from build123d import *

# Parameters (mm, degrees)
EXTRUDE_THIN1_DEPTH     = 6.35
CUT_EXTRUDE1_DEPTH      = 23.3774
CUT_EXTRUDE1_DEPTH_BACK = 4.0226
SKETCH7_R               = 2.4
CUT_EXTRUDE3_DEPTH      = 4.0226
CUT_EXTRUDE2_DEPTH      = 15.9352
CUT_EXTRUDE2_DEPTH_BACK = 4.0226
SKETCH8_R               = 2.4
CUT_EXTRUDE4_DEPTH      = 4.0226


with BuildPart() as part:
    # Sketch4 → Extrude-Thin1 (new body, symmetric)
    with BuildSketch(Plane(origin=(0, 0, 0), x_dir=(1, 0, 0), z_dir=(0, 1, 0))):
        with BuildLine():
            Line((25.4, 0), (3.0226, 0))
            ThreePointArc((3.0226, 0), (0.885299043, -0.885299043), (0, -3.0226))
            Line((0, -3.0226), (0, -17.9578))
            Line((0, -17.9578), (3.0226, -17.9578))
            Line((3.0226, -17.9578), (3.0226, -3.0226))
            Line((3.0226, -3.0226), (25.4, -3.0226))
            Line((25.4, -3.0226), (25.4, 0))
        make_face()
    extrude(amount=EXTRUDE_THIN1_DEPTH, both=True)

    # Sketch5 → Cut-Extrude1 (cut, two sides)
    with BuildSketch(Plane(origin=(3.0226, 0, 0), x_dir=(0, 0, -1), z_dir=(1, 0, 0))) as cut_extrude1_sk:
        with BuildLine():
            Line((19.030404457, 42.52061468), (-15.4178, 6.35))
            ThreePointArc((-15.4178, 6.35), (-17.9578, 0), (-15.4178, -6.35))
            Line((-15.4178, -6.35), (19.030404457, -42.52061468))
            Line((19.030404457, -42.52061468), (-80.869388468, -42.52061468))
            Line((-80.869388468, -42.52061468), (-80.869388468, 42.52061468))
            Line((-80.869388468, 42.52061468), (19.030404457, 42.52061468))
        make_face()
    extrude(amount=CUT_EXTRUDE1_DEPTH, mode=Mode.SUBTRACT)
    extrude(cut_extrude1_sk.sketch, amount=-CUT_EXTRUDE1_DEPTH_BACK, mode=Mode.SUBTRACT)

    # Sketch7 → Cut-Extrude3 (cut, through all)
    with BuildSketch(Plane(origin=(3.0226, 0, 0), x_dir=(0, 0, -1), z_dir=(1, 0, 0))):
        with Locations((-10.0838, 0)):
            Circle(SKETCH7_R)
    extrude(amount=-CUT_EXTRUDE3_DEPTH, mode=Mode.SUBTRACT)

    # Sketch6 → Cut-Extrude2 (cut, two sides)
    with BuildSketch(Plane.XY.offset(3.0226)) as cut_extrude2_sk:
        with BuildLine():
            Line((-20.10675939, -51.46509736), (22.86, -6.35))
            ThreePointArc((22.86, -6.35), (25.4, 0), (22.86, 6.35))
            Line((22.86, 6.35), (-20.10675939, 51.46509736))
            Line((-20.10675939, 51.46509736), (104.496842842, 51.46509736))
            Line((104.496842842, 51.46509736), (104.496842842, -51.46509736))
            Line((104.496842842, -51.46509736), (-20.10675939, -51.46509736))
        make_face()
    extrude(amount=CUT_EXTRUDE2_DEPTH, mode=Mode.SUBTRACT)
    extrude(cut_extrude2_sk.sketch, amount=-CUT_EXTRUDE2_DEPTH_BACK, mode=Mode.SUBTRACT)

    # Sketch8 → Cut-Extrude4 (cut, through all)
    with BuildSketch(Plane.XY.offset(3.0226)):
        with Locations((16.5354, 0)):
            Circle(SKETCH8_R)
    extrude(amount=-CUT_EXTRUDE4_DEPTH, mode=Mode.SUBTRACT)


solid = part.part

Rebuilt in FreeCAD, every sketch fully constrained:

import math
import FreeCAD as App
import Part
import Sketcher

V = App.Vector
Q = App.Units.Quantity

doc = App.newDocument("Part")
body = doc.addObject("PartDesign::Body", "Body")

sketch1 = body.newObject("Sketcher::SketchObject", "Sketch")
sketch1.AttachmentSupport = (doc.getObject("XZ_Plane"), [""])
sketch1.MapMode = "FlatFace"
sketch1.addGeometry(Part.LineSegment(V(25.4, 0, 0), V(3.0226, 0, 0)), False)
sketch1.addGeometry(Part.ArcOfCircle(Part.Circle(V(3.0226, 3.0226, 0), V(0, 0, 1), 3.0226), math.radians(180), math.radians(270)), False)
sketch1.addGeometry(Part.LineSegment(V(0, 3.0226, 0), V(0, 17.9578, 0)), False)
sketch1.addGeometry(Part.LineSegment(V(0, 17.9578, 0), V(3.0226, 17.9578, 0)), False)
sketch1.addGeometry(Part.LineSegment(V(3.0226, 17.9578, 0), V(3.0226, 3.0226, 0)), False)
sketch1.addGeometry(Part.LineSegment(V(3.0226, 3.0226, 0), V(25.4, 3.0226, 0)), False)
sketch1.addGeometry(Part.LineSegment(V(25.4, 3.0226, 0), V(25.4, 0, 0)), False)
sketch1.addConstraint(Sketcher.Constraint("Tangent", 0, 2, 1, 2))
sketch1.addConstraint(Sketcher.Constraint("Tangent", 1, 1, 2, 1))
sketch1.addConstraint(Sketcher.Constraint("Coincident", 2, 2, 3, 1))
sketch1.addConstraint(Sketcher.Constraint("Coincident", 3, 2, 4, 1))
sketch1.addConstraint(Sketcher.Constraint("Coincident", 4, 2, 5, 1))
sketch1.addConstraint(Sketcher.Constraint("Coincident", 5, 2, 6, 1))
sketch1.addConstraint(Sketcher.Constraint("Coincident", 6, 2, 0, 1))
sketch1.addConstraint(Sketcher.Constraint("Horizontal", 0))
sketch1.addConstraint(Sketcher.Constraint("Vertical", 2))
sketch1.addConstraint(Sketcher.Constraint("Horizontal", 3))
sketch1.addConstraint(Sketcher.Constraint("Vertical", 4))
sketch1.addConstraint(Sketcher.Constraint("Horizontal", 5))
sketch1.addConstraint(Sketcher.Constraint("Vertical", 6))
sketch1.addConstraint(Sketcher.Constraint("Coincident", 4, 2, 1, 3))
sketch1.addConstraint(Sketcher.Constraint("PointOnObject", 0, 2, -1))
sketch1.addConstraint(Sketcher.Constraint("PointOnObject", 1, 1, -2))
sketch1.addConstraint(Sketcher.Constraint("DistanceX", -1, 1, 5, 2, Q("1 in")))
sketch1.addConstraint(Sketcher.Constraint("Radius", 1, Q("0.119 in")))
sketch1.addConstraint(Sketcher.Constraint("DistanceY", 2, 1, 2, 2, Q("0.588 in")))
pad1 = body.newObject("PartDesign::Pad", "Pad")
pad1.Profile = sketch1
pad1.Length = Q("0.5 in")
pad1.Midplane = True

sketch2 = body.newObject("Sketcher::SketchObject", "Sketch001")
sketch2.AttachmentSupport = (doc.getObject("YZ_Plane"), [""])
sketch2.MapMode = "FlatFace"
sketch2.AttachmentOffset = App.Placement(V(0, 0, 0.119 * 25.4), App.Rotation())
sketch2.addGeometry(Part.LineSegment(V(6.35, 15.4178, 0), V(42.520615, -19.030404, 0)), False)
sketch2.addGeometry(Part.LineSegment(V(42.520615, -19.030404, 0), V(42.520615, 80.869388, 0)), False)
sketch2.addGeometry(Part.LineSegment(V(42.520615, 80.869388, 0), V(-42.520615, 80.869388, 0)), False)
sketch2.addGeometry(Part.LineSegment(V(-42.520615, 80.869388, 0), V(-42.520615, -19.030404, 0)), False)
sketch2.addGeometry(Part.LineSegment(V(-42.520615, -19.030404, 0), V(-6.35, 15.4178, 0)), False)
sketch2.addGeometry(Part.ArcOfCircle(Part.Circle(V(0, 8.7503, 0), V(0, 0, 1), 9.2075), math.radians(46.397181), math.radians(133.602819)), False)
sketch2.addConstraint(Sketcher.Constraint("Coincident", 0, 2, 1, 1))
sketch2.addConstraint(Sketcher.Constraint("Coincident", 1, 2, 2, 1))
sketch2.addConstraint(Sketcher.Constraint("Coincident", 2, 2, 3, 1))
sketch2.addConstraint(Sketcher.Constraint("Coincident", 3, 2, 4, 1))
sketch2.addConstraint(Sketcher.Constraint("Tangent", 4, 2, 5, 2))
sketch2.addConstraint(Sketcher.Constraint("Tangent", 5, 1, 0, 1))
sketch2.addConstraint(Sketcher.Constraint("Vertical", 1))
sketch2.addConstraint(Sketcher.Constraint("Horizontal", 2))
sketch2.addConstraint(Sketcher.Constraint("Vertical", 3))
sketch2.addConstraint(Sketcher.Constraint("Symmetric", 0, 2, 3, 2, -2))
sketch2.addConstraint(Sketcher.Constraint("PointOnObject", 5, 3, -2))
sketch2.addConstraint(Sketcher.Constraint("Radius", 5, Q("0.3625 in")))
sketch2.addConstraint(Sketcher.Constraint("DistanceX", 4, 2, 5, 1, Q("0.5 in")))
sketch2.addConstraint(Sketcher.Constraint("DistanceY", -1, 1, 4, 2, Q("0.607 in")))
sketch2.addConstraint(Sketcher.Constraint("DistanceX", 2, 2, 2, 1, 85.041229))
sketch2.addConstraint(Sketcher.Constraint("DistanceY", 1, 1, 1, 2, 99.899793))
pocket1 = body.newObject("PartDesign::Pocket", "Pocket")
pocket1.Profile = sketch2
pocket1.Type = "ThroughAll"
pocket1.Midplane = True

sketch3 = body.newObject("Sketcher::SketchObject", "Sketch002")
sketch3.AttachmentSupport = (doc.getObject("YZ_Plane"), [""])
sketch3.MapMode = "FlatFace"
sketch3.AttachmentOffset = App.Placement(V(0, 0, 0.119 * 25.4), App.Rotation())
sketch3.addGeometry(Part.Circle(V(0, 10.0838, 0), V(0, 0, 1), 2.4), False)
sketch3.addConstraint(Sketcher.Constraint("PointOnObject", 0, 3, -2))
sketch3.addConstraint(Sketcher.Constraint("Diameter", 0, 4.8))
sketch3.addConstraint(Sketcher.Constraint("DistanceY", -1, 1, 0, 3, Q("0.397 in")))
pocket2 = body.newObject("PartDesign::Pocket", "Pocket001")
pocket2.Profile = sketch3
pocket2.Type = "ThroughAll"

sketch4 = body.newObject("Sketcher::SketchObject", "Sketch003")
sketch4.AttachmentSupport = (doc.getObject("XY_Plane"), [""])
sketch4.MapMode = "FlatFace"
sketch4.AttachmentOffset = App.Placement(V(0, 0, 0.119 * 25.4), App.Rotation())
sketch4.addGeometry(Part.LineSegment(V(22.86, -6.35, 0), V(-20.106759, -51.465097, 0)), False)
sketch4.addGeometry(Part.LineSegment(V(-20.106759, -51.465097, 0), V(104.496843, -51.465097, 0)), False)
sketch4.addGeometry(Part.LineSegment(V(104.496843, -51.465097, 0), V(104.496843, 51.465097, 0)), False)
sketch4.addGeometry(Part.LineSegment(V(104.496843, 51.465097, 0), V(-20.106759, 51.465097, 0)), False)
sketch4.addGeometry(Part.LineSegment(V(-20.106759, 51.465097, 0), V(22.86, 6.35, 0)), False)
sketch4.addGeometry(Part.ArcOfCircle(Part.Circle(V(16.1925, 0, 0), V(0, 0, 1), 9.2075), math.radians(-43.602819), math.radians(43.602819)), False)
sketch4.addConstraint(Sketcher.Constraint("Coincident", 0, 2, 1, 1))
sketch4.addConstraint(Sketcher.Constraint("Coincident", 1, 2, 2, 1))
sketch4.addConstraint(Sketcher.Constraint("Coincident", 2, 2, 3, 1))
sketch4.addConstraint(Sketcher.Constraint("Coincident", 3, 2, 4, 1))
sketch4.addConstraint(Sketcher.Constraint("Tangent", 4, 2, 5, 2))
sketch4.addConstraint(Sketcher.Constraint("Tangent", 5, 1, 0, 1))
sketch4.addConstraint(Sketcher.Constraint("Horizontal", 1))
sketch4.addConstraint(Sketcher.Constraint("Vertical", 2))
sketch4.addConstraint(Sketcher.Constraint("Horizontal", 3))
sketch4.addConstraint(Sketcher.Constraint("Symmetric", 0, 2, 3, 2, -1))
sketch4.addConstraint(Sketcher.Constraint("PointOnObject", 5, 3, -1))
sketch4.addConstraint(Sketcher.Constraint("DistanceX", -1, 1, 4, 2, Q("0.9 in")))
sketch4.addConstraint(Sketcher.Constraint("Radius", 5, Q("0.3625 in")))
sketch4.addConstraint(Sketcher.Constraint("DistanceY", 5, 1, 4, 2, Q("0.5 in")))
sketch4.addConstraint(Sketcher.Constraint("Distance", 0, 62.301801))
sketch4.addConstraint(Sketcher.Constraint("DistanceX", 1, 1, 1, 2, 124.603602))
pocket3 = body.newObject("PartDesign::Pocket", "Pocket002")
pocket3.Profile = sketch4
pocket3.Type = "ThroughAll"
pocket3.Midplane = True

sketch5 = body.newObject("Sketcher::SketchObject", "Sketch004")
sketch5.AttachmentSupport = (doc.getObject("XY_Plane"), [""])
sketch5.MapMode = "FlatFace"
sketch5.AttachmentOffset = App.Placement(V(0, 0, 0.119 * 25.4), App.Rotation())
sketch5.addGeometry(Part.Circle(V(16.5354, 0, 0), V(0, 0, 1), 2.4), False)
sketch5.addConstraint(Sketcher.Constraint("PointOnObject", 0, 3, -1))
sketch5.addConstraint(Sketcher.Constraint("Diameter", 0, 4.8))
sketch5.addConstraint(Sketcher.Constraint("DistanceX", -1, 1, 0, 3, Q("0.651 in")))
pocket4 = body.newObject("PartDesign::Pocket", "Pocket003")
pocket4.Profile = sketch5
pocket4.Type = "ThroughAll"

doc.recompute()
